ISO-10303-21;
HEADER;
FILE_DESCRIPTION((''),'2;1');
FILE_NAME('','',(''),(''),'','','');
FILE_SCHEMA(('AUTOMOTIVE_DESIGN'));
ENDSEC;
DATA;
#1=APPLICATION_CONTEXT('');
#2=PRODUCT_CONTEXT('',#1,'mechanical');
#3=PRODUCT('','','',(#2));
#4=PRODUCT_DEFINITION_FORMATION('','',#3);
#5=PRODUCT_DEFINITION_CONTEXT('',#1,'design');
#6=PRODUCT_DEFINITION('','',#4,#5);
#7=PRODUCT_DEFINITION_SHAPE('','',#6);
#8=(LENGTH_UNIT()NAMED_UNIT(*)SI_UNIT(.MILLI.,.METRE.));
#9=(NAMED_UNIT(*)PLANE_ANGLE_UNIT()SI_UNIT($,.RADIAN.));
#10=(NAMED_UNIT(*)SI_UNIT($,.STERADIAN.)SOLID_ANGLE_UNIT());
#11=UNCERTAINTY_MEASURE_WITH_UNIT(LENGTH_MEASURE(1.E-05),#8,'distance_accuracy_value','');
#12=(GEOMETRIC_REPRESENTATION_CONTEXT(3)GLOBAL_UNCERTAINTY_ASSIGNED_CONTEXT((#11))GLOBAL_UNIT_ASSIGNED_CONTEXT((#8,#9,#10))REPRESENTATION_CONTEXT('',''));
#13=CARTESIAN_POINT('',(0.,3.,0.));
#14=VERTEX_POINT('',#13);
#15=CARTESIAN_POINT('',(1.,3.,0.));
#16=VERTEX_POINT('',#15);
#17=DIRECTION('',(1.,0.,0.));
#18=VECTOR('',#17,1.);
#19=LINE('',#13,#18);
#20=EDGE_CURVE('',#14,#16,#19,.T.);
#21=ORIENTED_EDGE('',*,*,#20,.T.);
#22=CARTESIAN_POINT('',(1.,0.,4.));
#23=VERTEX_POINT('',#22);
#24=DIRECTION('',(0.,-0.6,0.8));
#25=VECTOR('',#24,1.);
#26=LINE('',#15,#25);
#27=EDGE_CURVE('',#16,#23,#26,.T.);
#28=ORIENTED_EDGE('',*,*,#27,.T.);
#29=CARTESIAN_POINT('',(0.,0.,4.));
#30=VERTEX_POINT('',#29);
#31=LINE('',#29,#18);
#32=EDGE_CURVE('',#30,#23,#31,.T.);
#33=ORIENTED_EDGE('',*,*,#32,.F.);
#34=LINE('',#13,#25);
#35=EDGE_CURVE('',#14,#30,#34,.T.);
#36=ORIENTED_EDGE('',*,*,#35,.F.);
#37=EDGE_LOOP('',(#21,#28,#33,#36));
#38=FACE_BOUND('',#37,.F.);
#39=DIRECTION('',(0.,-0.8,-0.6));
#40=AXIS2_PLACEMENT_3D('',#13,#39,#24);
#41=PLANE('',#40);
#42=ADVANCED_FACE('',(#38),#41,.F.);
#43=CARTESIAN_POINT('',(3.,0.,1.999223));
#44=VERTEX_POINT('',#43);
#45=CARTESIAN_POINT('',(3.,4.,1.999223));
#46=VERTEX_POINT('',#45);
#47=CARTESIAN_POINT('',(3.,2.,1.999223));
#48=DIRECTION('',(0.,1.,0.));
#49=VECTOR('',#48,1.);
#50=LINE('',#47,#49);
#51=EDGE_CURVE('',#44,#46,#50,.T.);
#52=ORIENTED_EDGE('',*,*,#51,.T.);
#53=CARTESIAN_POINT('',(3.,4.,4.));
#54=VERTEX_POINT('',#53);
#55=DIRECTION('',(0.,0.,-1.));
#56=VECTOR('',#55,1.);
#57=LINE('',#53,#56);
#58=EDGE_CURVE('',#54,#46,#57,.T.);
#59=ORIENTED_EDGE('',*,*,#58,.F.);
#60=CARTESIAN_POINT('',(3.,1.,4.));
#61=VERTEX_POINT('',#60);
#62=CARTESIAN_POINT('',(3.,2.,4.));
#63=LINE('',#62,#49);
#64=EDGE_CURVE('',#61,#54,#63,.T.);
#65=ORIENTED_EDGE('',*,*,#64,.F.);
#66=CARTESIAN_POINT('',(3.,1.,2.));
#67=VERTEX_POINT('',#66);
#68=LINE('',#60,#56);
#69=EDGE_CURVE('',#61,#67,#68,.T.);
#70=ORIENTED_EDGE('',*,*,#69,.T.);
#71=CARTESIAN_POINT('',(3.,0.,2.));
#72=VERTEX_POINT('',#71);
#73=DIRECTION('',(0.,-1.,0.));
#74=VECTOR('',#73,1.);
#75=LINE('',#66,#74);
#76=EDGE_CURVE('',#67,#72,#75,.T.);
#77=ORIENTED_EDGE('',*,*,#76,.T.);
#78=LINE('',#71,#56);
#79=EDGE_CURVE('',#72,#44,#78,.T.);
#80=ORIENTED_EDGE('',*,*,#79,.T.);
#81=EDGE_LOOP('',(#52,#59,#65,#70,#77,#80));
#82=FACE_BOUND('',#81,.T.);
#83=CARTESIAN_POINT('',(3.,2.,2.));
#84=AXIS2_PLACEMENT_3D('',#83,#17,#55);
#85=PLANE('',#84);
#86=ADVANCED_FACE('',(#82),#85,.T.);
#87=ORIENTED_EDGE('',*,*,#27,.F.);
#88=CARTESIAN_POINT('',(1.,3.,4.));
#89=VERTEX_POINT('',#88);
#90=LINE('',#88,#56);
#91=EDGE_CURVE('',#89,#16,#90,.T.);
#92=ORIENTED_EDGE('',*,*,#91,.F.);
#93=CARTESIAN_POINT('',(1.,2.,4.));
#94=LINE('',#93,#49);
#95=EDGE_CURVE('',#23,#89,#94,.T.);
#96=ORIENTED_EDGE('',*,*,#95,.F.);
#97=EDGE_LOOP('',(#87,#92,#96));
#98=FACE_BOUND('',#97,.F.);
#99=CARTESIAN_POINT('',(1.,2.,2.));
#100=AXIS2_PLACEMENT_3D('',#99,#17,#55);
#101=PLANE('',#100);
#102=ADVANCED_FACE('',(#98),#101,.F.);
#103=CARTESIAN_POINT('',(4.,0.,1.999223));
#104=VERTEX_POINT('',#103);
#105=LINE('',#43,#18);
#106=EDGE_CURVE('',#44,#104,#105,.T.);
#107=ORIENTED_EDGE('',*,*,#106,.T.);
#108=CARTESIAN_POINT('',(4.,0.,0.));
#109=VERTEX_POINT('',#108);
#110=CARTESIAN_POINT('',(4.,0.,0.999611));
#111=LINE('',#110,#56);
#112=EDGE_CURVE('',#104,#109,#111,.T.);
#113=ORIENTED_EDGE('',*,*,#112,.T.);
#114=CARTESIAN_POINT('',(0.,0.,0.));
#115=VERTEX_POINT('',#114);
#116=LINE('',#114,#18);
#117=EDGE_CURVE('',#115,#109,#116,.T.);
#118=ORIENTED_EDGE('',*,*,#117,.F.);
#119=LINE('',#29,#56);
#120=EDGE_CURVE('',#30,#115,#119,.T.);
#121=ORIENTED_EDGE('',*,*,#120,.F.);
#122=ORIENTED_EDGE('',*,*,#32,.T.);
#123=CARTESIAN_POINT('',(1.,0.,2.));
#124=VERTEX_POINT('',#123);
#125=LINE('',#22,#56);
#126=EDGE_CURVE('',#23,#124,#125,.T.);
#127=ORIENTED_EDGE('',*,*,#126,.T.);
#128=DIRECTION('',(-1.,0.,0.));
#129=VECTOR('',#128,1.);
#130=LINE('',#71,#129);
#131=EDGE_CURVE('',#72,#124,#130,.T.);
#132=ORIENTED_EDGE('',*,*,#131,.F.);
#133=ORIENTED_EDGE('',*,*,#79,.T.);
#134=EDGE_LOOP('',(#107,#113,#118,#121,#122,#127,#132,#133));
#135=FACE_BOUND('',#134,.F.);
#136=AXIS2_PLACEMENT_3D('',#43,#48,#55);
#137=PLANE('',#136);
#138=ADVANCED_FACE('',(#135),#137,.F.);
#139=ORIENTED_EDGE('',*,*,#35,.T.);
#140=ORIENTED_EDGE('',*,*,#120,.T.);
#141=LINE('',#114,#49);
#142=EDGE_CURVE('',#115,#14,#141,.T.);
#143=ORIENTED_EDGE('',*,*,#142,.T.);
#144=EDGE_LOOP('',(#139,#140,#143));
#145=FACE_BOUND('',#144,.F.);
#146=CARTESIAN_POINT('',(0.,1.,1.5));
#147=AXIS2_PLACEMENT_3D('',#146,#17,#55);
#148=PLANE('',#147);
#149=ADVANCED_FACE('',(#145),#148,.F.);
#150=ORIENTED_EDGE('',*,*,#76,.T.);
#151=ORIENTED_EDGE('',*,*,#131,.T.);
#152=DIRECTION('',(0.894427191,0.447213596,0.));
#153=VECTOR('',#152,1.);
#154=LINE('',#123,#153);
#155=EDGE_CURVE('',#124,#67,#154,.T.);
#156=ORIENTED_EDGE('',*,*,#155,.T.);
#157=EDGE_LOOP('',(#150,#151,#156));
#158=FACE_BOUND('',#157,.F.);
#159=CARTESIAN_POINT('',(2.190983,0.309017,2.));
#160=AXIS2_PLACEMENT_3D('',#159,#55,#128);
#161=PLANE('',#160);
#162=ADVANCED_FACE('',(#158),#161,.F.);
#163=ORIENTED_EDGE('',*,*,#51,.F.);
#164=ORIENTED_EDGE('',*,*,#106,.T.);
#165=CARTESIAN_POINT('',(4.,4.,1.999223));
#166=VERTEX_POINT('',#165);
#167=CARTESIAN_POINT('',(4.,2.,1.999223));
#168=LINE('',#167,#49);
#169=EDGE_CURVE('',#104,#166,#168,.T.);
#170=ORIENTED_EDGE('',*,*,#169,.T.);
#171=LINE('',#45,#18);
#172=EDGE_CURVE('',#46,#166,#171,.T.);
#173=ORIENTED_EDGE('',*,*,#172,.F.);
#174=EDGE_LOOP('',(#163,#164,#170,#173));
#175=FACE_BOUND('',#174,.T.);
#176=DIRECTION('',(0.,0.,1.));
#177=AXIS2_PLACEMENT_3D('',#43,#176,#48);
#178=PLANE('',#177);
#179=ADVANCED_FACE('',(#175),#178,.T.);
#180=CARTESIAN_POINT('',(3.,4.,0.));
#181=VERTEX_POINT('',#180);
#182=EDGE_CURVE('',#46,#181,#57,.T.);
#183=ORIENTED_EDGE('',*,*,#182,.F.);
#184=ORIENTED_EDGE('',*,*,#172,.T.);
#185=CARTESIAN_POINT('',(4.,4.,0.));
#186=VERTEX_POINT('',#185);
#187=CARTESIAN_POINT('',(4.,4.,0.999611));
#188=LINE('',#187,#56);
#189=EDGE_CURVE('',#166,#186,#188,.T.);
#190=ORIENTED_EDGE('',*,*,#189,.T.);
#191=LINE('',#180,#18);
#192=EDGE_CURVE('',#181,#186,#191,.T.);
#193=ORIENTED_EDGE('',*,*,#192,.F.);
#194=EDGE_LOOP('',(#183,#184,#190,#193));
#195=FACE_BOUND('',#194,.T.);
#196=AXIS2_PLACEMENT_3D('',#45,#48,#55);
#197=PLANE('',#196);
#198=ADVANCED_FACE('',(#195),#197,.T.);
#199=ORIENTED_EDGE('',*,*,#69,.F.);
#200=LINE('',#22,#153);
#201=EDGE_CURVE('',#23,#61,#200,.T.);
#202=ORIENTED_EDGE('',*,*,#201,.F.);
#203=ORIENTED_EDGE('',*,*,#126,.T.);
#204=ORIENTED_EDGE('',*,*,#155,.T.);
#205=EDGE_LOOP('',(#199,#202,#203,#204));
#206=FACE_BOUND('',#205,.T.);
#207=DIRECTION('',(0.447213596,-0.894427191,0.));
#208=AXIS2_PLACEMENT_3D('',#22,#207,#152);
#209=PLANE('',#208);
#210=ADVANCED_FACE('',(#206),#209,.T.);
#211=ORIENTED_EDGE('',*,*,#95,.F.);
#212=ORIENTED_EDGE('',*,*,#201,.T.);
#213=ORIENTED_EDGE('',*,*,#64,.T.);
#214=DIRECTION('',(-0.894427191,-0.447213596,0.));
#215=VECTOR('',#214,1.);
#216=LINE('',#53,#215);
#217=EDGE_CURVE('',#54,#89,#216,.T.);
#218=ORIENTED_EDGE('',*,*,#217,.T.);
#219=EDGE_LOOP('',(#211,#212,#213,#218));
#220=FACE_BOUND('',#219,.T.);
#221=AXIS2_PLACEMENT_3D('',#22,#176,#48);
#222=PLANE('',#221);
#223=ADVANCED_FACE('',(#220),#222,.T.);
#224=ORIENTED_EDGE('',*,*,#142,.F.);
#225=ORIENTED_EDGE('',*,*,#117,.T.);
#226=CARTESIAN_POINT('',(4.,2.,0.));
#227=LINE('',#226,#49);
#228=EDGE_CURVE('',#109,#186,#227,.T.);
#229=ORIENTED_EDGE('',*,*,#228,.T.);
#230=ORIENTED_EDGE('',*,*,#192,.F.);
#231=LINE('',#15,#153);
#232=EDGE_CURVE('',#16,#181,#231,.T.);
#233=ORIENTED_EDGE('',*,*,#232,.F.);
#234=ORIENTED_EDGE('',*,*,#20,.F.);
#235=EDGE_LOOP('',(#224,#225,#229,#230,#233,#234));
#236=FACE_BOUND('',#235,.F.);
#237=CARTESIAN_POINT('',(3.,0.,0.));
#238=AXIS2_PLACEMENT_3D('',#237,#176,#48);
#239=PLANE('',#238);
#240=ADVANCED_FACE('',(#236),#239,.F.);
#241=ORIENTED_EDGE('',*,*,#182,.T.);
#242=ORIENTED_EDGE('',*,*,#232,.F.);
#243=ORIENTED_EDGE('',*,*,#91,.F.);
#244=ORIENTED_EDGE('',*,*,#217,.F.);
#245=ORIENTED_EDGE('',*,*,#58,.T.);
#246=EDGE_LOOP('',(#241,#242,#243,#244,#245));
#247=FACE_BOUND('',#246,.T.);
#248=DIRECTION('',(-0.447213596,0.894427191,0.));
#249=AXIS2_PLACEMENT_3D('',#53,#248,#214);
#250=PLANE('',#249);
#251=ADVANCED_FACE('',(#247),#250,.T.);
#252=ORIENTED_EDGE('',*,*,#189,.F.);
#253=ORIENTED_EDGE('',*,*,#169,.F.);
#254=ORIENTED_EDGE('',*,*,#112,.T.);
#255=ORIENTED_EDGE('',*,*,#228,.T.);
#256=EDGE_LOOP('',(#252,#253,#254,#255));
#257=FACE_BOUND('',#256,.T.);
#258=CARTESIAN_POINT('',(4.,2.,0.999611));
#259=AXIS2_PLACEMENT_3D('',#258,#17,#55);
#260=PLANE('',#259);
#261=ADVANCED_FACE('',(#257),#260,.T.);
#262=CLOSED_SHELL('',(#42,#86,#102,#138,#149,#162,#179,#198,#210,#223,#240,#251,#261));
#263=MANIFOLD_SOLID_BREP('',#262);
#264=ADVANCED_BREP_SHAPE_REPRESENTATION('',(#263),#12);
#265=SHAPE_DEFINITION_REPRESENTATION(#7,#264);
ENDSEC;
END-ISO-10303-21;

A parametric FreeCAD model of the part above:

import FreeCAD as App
import Part
import Sketcher
Q = App.Units.Quantity


def add_polygon(sketch, points):
    """Adds a closed chain of lines whose ends are joined by coincident constraints."""
    first, n = sketch.GeometryCount, len(points)
    for a, b in zip(points, points[1:] + points[:1]):
        sketch.addGeometry(Part.LineSegment(App.Vector(*a, 0), App.Vector(*b, 0)), False)
    for i in range(n):
        sketch.addConstraint(Sketcher.Constraint("Coincident", first + i, 2, first + (i + 1) % n, 1))

doc = App.newDocument("Part")
params = doc.addObject("Spreadsheet::Sheet", "Params")
for row, (alias, value) in enumerate([
    ("sketch1_width", "3 mm"),
    ("sketch1_height", "4 mm"),
    ("pad1_length", "1 mm"),
    ("sketch2_width", "4 mm"),
    ("pad2_length", "2 mm"),
    ("sketch3_width", "2 mm"),
    ("sketch3_height", "1 mm"),
    ("pocket1_length", "2 mm"),
    ("sketch4_width", "2 mm"),
    ("sketch4_height", "1 mm"),
    ("pocket2_length", "2 mm"),
    ("sketch5_width", "4 mm"),
    ("pad3_length", "1 mm"),
], start=1):
    params.set(f"A{row}", alias)
    params.set(f"B{row}", "=" + value)
    params.setAlias(f"B{row}", alias)

body = doc.addObject("PartDesign::Body", "Body")

sketch1 = doc.addObject("Sketcher::SketchObject", "Sketch")
body.addObject(sketch1)
sketch1.AttachmentSupport = (doc.YZ_Plane, [""])
sketch1.MapMode = "FlatFace"
add_polygon(sketch1, [(0, 0), (3, 0), (0, 4)])
sketch1.addConstraint([
    Sketcher.Constraint("Horizontal", 0),
    Sketcher.Constraint("Vertical", 2),
    Sketcher.Constraint("Coincident", 2, 2, -1, 1),
    Sketcher.Constraint("DistanceX", 0, 1, 0, 2, Q("3 mm")),
    Sketcher.Constraint("DistanceY", 2, 2, 2, 1, Q("4 mm")),
])
sketch1.setExpression("Constraints[6]", "Params.sketch1_width")
sketch1.setExpression("Constraints[7]", "Params.sketch1_height")
pad1 = doc.addObject("PartDesign::Pad", "Pad")
body.addObject(pad1)
pad1.Profile = sketch1
pad1.setExpression("Length", "Params.pad1_length")

sketch2 = doc.addObject("Sketcher::SketchObject", "Sketch001")
body.addObject(sketch2)
sketch2.AttachmentSupport = (doc.YZ_Plane, [""])
sketch2.MapMode = "FlatFace"
sketch2.AttachmentOffset = App.Placement(App.Vector(0, 0, 1), App.Rotation())
add_polygon(sketch2, [(4, 4), (0, 4), (0, 0), (4, 0)])
sketch2.addConstraint([
    Sketcher.Constraint("Horizontal", 0),
    Sketcher.Constraint("Vertical", 1),
    Sketcher.Constraint("Horizontal", 2),
    Sketcher.Constraint("Vertical", 3),
    Sketcher.Constraint("Coincident", 1, 2, -1, 1),
    Sketcher.Constraint("Equal", 2, 1),
    Sketcher.Constraint("DistanceX", 0, 2, 0, 1, Q("4 mm")),
])
sketch2.setExpression("Constraints[10]", "Params.sketch2_width")
pad2 = doc.addObject("PartDesign::Pad", "Pad001")
body.addObject(pad2)
pad2.Profile = sketch2
pad2.setExpression("Length", "Params.pad2_length")

sketch3 = doc.addObject("Sketcher::SketchObject", "Sketch002")
body.addObject(sketch3)
sketch3.AttachmentSupport = (doc.XY_Plane, [""])
sketch3.MapMode = "FlatFace"
sketch3.AttachmentOffset = App.Placement(App.Vector(0, 0, 4), App.Rotation())
add_polygon(sketch3, [(1, 3), (3, 4), (1, 4)])
add_polygon(sketch3, [(3, 1), (1, 0), (3, 0)])
sketch3.addConstraint([
    Sketcher.Constraint("Horizontal", 1),
    Sketcher.Constraint("Vertical", 2),
    Sketcher.Constraint("Horizontal", 4),
    Sketcher.Constraint("Vertical", 5),
    Sketcher.Constraint("PointOnObject", 3, 2, -1),
    Sketcher.Constraint("Parallel", 0, 3),
    Sketcher.Constraint("Vertical", 2, 2, 3, 2),
    Sketcher.Constraint("Vertical", 0, 2, 4, 2),
    Sketcher.Constraint("DistanceX", 1, 2, 1, 1, Q("2 mm")),
    Sketcher.Constraint("DistanceY", 2, 2, 2, 1, Q("1 mm")),
    Sketcher.Constraint("DistanceX", -1, 1, 0, 2, Q("3 mm")),
    Sketcher.Constraint("DistanceY", -1, 1, 0, 2, Q("4 mm")),
])
sketch3.setExpression("Constraints[14]", "Params.sketch3_width")
sketch3.setExpression("Constraints[15]", "Params.sketch3_height")
pocket1 = doc.addObject("PartDesign::Pocket", "Pocket")
body.addObject(pocket1)
pocket1.Profile = sketch3
pocket1.setExpression("Length", "Params.pocket1_length")

sketch4 = doc.addObject("Sketcher::SketchObject", "Sketch003")
body.addObject(sketch4)
sketch4.AttachmentSupport = (doc.XY_Plane, [""])
sketch4.MapMode = "FlatFace"
sketch4.AttachmentOffset = App.Placement(App.Vector(0, 0, 2), App.Rotation())
add_polygon(sketch4, [(3, 4), (1, 4), (1, 3)])
sketch4.addConstraint([
    Sketcher.Constraint("Horizontal", 0),
    Sketcher.Constraint("Vertical", 1),
    Sketcher.Constraint("DistanceX", 0, 2, 0, 1, Q("2 mm")),
    Sketcher.Constraint("DistanceY", 1, 2, 1, 1, Q("1 mm")),
    Sketcher.Constraint("DistanceX", -1, 1, 0, 2, Q("1 mm")),
    Sketcher.Constraint("DistanceY", -1, 1, 0, 2, Q("4 mm")),
])
sketch4.setExpression("Constraints[5]", "Params.sketch4_width")
sketch4.setExpression("Constraints[6]", "Params.sketch4_height")
pocket2 = doc.addObject("PartDesign::Pocket", "Pocket001")
body.addObject(pocket2)
pocket2.Profile = sketch4
pocket2.setExpression("Length", "Params.pocket2_length")

sketch5 = doc.addObject("Sketcher::SketchObject", "Sketch004")
body.addObject(sketch5)
sketch5.AttachmentSupport = (doc.YZ_Plane, [""])
sketch5.MapMode = "FlatFace"
sketch5.AttachmentOffset = App.Placement(App.Vector(0, 0, 3), App.Rotation())
add_polygon(sketch5, [(4, 2), (0, 2), (0, 0), (4, 0)])
sketch5.addConstraint([
    Sketcher.Constraint("Horizontal", 0),
    Sketcher.Constraint("Vertical", 1),
    Sketcher.Constraint("Horizontal", 2),
    Sketcher.Constraint("Vertical", 3),
    Sketcher.Constraint("Coincident", 1, 2, -1, 1),
    Sketcher.Constraint("DistanceX", 0, 2, 0, 1, Q("4 mm")),
    Sketcher.Constraint("DistanceY", 1, 2, 1, 1, Q("1.999223 mm")),
])
sketch5.setExpression("Constraints[9]", "Params.sketch5_width")
pad3 = doc.addObject("PartDesign::Pad", "Pad002")
body.addObject(pad3)
pad3.Profile = sketch5
pad3.setExpression("Length", "Params.pad3_length")

doc.recompute()
